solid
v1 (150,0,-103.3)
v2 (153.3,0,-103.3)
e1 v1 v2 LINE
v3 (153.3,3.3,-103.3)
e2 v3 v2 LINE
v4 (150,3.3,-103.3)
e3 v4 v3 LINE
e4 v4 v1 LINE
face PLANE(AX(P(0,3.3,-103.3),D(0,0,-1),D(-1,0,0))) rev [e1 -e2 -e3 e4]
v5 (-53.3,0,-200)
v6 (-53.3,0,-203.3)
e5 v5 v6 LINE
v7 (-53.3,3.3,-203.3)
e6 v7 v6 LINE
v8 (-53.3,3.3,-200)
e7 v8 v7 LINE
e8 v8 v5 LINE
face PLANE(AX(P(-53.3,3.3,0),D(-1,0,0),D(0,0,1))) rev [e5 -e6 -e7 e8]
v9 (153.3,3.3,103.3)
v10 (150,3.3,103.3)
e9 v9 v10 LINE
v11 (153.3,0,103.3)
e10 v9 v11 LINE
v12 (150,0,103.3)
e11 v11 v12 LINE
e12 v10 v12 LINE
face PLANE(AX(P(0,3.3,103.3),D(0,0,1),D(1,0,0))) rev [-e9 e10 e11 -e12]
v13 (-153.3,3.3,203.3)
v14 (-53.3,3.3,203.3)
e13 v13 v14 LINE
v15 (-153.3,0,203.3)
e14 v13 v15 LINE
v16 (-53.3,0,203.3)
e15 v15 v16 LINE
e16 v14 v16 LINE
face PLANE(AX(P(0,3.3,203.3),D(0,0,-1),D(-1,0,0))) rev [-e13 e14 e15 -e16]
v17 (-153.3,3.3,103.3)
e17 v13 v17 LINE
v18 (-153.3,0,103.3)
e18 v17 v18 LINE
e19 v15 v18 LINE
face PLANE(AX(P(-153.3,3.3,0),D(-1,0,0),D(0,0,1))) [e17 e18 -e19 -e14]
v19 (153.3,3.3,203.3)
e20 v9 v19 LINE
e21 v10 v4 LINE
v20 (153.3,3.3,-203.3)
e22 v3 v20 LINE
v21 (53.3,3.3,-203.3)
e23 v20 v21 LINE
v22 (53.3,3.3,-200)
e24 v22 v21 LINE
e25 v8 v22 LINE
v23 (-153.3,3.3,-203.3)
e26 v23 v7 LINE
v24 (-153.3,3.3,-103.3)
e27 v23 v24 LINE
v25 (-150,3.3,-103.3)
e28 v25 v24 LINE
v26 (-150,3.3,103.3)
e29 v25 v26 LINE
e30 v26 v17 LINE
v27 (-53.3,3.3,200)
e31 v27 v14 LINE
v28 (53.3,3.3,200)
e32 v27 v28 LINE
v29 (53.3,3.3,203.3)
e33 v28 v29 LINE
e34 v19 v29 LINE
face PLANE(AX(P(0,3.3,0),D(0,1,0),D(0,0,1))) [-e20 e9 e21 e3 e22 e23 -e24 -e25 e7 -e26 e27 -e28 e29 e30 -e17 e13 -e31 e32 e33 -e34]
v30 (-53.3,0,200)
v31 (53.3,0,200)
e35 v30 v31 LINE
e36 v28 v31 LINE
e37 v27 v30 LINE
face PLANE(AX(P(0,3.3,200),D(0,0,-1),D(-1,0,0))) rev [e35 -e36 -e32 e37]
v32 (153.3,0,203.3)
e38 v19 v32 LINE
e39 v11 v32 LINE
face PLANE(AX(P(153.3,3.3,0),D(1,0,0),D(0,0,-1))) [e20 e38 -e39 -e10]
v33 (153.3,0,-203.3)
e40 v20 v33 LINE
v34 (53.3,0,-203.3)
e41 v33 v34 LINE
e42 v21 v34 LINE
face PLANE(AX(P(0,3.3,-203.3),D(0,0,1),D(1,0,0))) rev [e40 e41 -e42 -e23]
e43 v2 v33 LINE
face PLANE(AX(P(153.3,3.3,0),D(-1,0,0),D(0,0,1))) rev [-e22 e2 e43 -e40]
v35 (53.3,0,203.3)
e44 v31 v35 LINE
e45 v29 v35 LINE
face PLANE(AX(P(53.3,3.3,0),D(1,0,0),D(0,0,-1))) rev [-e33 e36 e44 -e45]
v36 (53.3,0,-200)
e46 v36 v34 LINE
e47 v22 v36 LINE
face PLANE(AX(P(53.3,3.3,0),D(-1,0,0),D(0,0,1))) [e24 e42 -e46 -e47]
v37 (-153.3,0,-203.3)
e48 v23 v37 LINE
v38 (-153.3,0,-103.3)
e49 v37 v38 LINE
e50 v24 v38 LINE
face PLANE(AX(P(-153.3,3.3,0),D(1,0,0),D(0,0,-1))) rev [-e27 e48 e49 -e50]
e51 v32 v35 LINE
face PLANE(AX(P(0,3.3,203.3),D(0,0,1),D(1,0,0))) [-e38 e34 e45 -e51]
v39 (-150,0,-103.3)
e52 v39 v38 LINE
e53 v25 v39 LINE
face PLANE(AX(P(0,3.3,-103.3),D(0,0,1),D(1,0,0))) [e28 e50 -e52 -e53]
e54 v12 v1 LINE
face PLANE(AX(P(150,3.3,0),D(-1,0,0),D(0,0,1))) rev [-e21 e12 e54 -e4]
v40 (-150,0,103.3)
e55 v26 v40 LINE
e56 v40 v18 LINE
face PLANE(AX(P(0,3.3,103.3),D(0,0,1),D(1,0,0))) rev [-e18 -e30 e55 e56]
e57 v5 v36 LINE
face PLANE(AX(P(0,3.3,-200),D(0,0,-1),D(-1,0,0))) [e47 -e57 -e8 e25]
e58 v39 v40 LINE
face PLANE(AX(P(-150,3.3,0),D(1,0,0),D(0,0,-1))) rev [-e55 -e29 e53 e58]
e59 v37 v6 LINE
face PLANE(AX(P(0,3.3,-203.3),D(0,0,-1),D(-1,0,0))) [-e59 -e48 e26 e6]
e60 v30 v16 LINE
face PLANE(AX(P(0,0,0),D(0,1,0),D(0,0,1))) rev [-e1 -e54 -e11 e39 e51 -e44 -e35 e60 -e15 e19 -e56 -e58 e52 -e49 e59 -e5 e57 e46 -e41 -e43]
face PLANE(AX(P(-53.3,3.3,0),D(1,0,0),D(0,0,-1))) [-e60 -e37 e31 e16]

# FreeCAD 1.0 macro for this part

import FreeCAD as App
import Part
import Sketcher

V = App.Vector

doc = App.newDocument("Part")
params = doc.addObject("Spreadsheet::Sheet", "Params")
for row, (alias, value) in enumerate([
    ("sketch1_width", "100 mm"),
    ("sketch1_width2", "106.6 mm"),
    ("sketch1_width3", "3.3 mm"),
    ("sketch1_height", "206.6 mm"),
    ("pad1_length", "3.3 mm"),
], start=1):
    params.set(f"A{row}", alias)
    params.set(f"B{row}", "=" + value)
    params.setAlias(f"B{row}", alias)

body = doc.addObject("PartDesign::Body", "Body")

# Sketch on XZ plane
sketch1 = doc.addObject("Sketcher::SketchObject", "Sketch")
body.addObject(sketch1)
sketch1.AttachmentSupport = (doc.XZ_Plane, [""])
sketch1.MapMode = "FlatFace"
sketch1.addGeometry(Part.LineSegment(V(53.3, -200, 0), V(-53.3, -200, 0)), False)
sketch1.addGeometry(Part.LineSegment(V(-53.3, -200, 0), V(-53.3, -203.3, 0)), False)
sketch1.addGeometry(Part.LineSegment(V(-53.3, -203.3, 0), V(-153.3, -203.3, 0)), False)
sketch1.addGeometry(Part.LineSegment(V(-153.3, -203.3, 0), V(-153.3, -103.3, 0)), False)
sketch1.addGeometry(Part.LineSegment(V(-153.3, -103.3, 0), V(-150, -103.3, 0)), False)
sketch1.addGeometry(Part.LineSegment(V(-150, -103.3, 0), V(-150, 103.3, 0)), False)
sketch1.addGeometry(Part.LineSegment(V(-150, 103.3, 0), V(-153.3, 103.3, 0)), False)
sketch1.addGeometry(Part.LineSegment(V(-153.3, 103.3, 0), V(-153.3, 203.3, 0)), False)
sketch1.addGeometry(Part.LineSegment(V(-153.3, 203.3, 0), V(-53.3, 203.3, 0)), False)
sketch1.addGeometry(Part.LineSegment(V(-53.3, 203.3, 0), V(-53.3, 200, 0)), False)
sketch1.addGeometry(Part.LineSegment(V(-53.3, 200, 0), V(53.3, 200, 0)), False)
sketch1.addGeometry(Part.LineSegment(V(53.3, 200, 0), V(53.3, 203.3, 0)), False)
sketch1.addGeometry(Part.LineSegment(V(53.3, 203.3, 0), V(153.3, 203.3, 0)), False)
sketch1.addGeometry(Part.LineSegment(V(153.3, 203.3, 0), V(153.3, 103.3, 0)), False)
sketch1.addGeometry(Part.LineSegment(V(153.3, 103.3, 0), V(150, 103.3, 0)), False)
sketch1.addGeometry(Part.LineSegment(V(150, 103.3, 0), V(150, -103.3, 0)), False)
sketch1.addGeometry(Part.LineSegment(V(150, -103.3, 0), V(153.3, -103.3, 0)), False)
sketch1.addGeometry(Part.LineSegment(V(153.3, -103.3, 0), V(153.3, -203.3, 0)), False)
sketch1.addGeometry(Part.LineSegment(V(153.3, -203.3, 0), V(53.3, -203.3, 0)), False)
sketch1.addGeometry(Part.LineSegment(V(53.3, -203.3, 0), V(53.3, -200, 0)), False)
sketch1.addConstraint(Sketcher.Constraint("Coincident", 0, 2, 1, 1))
sketch1.addConstraint(Sketcher.Constraint("Coincident", 1, 2, 2, 1))
sketch1.addConstraint(Sketcher.Constraint("Coincident", 2, 2, 3, 1))
sketch1.addConstraint(Sketcher.Constraint("Coincident", 3, 2, 4, 1))
sketch1.addConstraint(Sketcher.Constraint("Coincident", 4, 2, 5, 1))
sketch1.addConstraint(Sketcher.Constraint("Coincident", 5, 2, 6, 1))
sketch1.addConstraint(Sketcher.Constraint("Coincident", 6, 2, 7, 1))
sketch1.addConstraint(Sketcher.Constraint("Coincident", 7, 2, 8, 1))
sketch1.addConstraint(Sketcher.Constraint("Coincident", 8, 2, 9, 1))
sketch1.addConstraint(Sketcher.Constraint("Coincident", 9, 2, 10, 1))
sketch1.addConstraint(Sketcher.Constraint("Coincident", 10, 2, 11, 1))
sketch1.addConstraint(Sketcher.Constraint("Coincident", 11, 2, 12, 1))
sketch1.addConstraint(Sketcher.Constraint("Coincident", 12, 2, 13, 1))
sketch1.addConstraint(Sketcher.Constraint("Coincident", 13, 2, 14, 1))
sketch1.addConstraint(Sketcher.Constraint("Coincident", 14, 2, 15, 1))
sketch1.addConstraint(Sketcher.Constraint("Coincident", 15, 2, 16, 1))
sketch1.addConstraint(Sketcher.Constraint("Coincident", 16, 2, 17, 1))
sketch1.addConstraint(Sketcher.Constraint("Coincident", 17, 2, 18, 1))
sketch1.addConstraint(Sketcher.Constraint("Coincident", 18, 2, 19, 1))
sketch1.addConstraint(Sketcher.Constraint("Coincident", 19, 2, 0, 1))
sketch1.addConstraint(Sketcher.Constraint("Horizontal", 0))
sketch1.addConstraint(Sketcher.Constraint("Vertical", 1))
sketch1.addConstraint(Sketcher.Constraint("Horizontal", 2))
sketch1.addConstraint(Sketcher.Constraint("Vertical", 3))
sketch1.addConstraint(Sketcher.Constraint("Horizontal", 4))
sketch1.addConstraint(Sketcher.Constraint("Vertical", 5))
sketch1.addConstraint(Sketcher.Constraint("Horizontal", 6))
sketch1.addConstraint(Sketcher.Constraint("Vertical", 7))
sketch1.addConstraint(Sketcher.Constraint("Horizontal", 8))
sketch1.addConstraint(Sketcher.Constraint("Vertical", 9))
sketch1.addConstraint(Sketcher.Constraint("Horizontal", 10))
sketch1.addConstraint(Sketcher.Constraint("Vertical", 11))
sketch1.addConstraint(Sketcher.Constraint("Horizontal", 12))
sketch1.addConstraint(Sketcher.Constraint("Vertical", 13))
sketch1.addConstraint(Sketcher.Constraint("Horizontal", 14))
sketch1.addConstraint(Sketcher.Constraint("Vertical", 15))
sketch1.addConstraint(Sketcher.Constraint("Horizontal", 16))
sketch1.addConstraint(Sketcher.Constraint("Vertical", 17))
sketch1.addConstraint(Sketcher.Constraint("Horizontal", 18))
sketch1.addConstraint(Sketcher.Constraint("Vertical", 19))
sketch1.addConstraint(Sketcher.Constraint("Symmetric", 0, 2, 10, 2, -1, 1))
sketch1.addConstraint(Sketcher.Constraint("Symmetric", 2, 2, 12, 2, -1, 1))
sketch1.addConstraint(Sketcher.Constraint("Symmetric", 4, 2, 14, 2, -1, 1))
sketch1.addConstraint(Sketcher.Constraint("Symmetric", 6, 2, 16, 2, -1, 1))
sketch1.addConstraint(Sketcher.Constraint("Symmetric", 8, 2, 18, 2, -1, 1))
sketch1.addConstraint(Sketcher.Constraint("Symmetric", 8, 2, 11, 2, -2))
sketch1.addConstraint(Sketcher.Constraint("Symmetric", 6, 2, 13, 2, -2))
sketch1.addConstraint(Sketcher.Constraint("Equal", 16, 1))
sketch1.addConstraint(Sketcher.Constraint("Equal", 18, 3))
sketch1.addConstraint(Sketcher.Constraint("DistanceX", 2, 2, 2, 1, 100.0))
sketch1.addConstraint(Sketcher.Constraint("DistanceX", 0, 2, 0, 1, 106.6))
sketch1.addConstraint(Sketcher.Constraint("DistanceX", 4, 1, 4, 2, 3.3))
sketch1.addConstraint(Sketcher.Constraint("DistanceY", 5, 1, 5, 2, 206.6))
sketch1.setExpression("Constraints[49]", "Params.sketch1_width")
sketch1.setExpression("Constraints[50]", "Params.sketch1_width2")
sketch1.setExpression("Constraints[51]", "Params.sketch1_width3")
sketch1.setExpression("Constraints[52]", "Params.sketch1_height")
pad1 = doc.addObject("PartDesign::Pad", "Pad")
body.addObject(pad1)
pad1.Profile = sketch1
pad1.setExpression("Length", "Params.pad1_length")
pad1.Reversed = True

doc.recompute()
